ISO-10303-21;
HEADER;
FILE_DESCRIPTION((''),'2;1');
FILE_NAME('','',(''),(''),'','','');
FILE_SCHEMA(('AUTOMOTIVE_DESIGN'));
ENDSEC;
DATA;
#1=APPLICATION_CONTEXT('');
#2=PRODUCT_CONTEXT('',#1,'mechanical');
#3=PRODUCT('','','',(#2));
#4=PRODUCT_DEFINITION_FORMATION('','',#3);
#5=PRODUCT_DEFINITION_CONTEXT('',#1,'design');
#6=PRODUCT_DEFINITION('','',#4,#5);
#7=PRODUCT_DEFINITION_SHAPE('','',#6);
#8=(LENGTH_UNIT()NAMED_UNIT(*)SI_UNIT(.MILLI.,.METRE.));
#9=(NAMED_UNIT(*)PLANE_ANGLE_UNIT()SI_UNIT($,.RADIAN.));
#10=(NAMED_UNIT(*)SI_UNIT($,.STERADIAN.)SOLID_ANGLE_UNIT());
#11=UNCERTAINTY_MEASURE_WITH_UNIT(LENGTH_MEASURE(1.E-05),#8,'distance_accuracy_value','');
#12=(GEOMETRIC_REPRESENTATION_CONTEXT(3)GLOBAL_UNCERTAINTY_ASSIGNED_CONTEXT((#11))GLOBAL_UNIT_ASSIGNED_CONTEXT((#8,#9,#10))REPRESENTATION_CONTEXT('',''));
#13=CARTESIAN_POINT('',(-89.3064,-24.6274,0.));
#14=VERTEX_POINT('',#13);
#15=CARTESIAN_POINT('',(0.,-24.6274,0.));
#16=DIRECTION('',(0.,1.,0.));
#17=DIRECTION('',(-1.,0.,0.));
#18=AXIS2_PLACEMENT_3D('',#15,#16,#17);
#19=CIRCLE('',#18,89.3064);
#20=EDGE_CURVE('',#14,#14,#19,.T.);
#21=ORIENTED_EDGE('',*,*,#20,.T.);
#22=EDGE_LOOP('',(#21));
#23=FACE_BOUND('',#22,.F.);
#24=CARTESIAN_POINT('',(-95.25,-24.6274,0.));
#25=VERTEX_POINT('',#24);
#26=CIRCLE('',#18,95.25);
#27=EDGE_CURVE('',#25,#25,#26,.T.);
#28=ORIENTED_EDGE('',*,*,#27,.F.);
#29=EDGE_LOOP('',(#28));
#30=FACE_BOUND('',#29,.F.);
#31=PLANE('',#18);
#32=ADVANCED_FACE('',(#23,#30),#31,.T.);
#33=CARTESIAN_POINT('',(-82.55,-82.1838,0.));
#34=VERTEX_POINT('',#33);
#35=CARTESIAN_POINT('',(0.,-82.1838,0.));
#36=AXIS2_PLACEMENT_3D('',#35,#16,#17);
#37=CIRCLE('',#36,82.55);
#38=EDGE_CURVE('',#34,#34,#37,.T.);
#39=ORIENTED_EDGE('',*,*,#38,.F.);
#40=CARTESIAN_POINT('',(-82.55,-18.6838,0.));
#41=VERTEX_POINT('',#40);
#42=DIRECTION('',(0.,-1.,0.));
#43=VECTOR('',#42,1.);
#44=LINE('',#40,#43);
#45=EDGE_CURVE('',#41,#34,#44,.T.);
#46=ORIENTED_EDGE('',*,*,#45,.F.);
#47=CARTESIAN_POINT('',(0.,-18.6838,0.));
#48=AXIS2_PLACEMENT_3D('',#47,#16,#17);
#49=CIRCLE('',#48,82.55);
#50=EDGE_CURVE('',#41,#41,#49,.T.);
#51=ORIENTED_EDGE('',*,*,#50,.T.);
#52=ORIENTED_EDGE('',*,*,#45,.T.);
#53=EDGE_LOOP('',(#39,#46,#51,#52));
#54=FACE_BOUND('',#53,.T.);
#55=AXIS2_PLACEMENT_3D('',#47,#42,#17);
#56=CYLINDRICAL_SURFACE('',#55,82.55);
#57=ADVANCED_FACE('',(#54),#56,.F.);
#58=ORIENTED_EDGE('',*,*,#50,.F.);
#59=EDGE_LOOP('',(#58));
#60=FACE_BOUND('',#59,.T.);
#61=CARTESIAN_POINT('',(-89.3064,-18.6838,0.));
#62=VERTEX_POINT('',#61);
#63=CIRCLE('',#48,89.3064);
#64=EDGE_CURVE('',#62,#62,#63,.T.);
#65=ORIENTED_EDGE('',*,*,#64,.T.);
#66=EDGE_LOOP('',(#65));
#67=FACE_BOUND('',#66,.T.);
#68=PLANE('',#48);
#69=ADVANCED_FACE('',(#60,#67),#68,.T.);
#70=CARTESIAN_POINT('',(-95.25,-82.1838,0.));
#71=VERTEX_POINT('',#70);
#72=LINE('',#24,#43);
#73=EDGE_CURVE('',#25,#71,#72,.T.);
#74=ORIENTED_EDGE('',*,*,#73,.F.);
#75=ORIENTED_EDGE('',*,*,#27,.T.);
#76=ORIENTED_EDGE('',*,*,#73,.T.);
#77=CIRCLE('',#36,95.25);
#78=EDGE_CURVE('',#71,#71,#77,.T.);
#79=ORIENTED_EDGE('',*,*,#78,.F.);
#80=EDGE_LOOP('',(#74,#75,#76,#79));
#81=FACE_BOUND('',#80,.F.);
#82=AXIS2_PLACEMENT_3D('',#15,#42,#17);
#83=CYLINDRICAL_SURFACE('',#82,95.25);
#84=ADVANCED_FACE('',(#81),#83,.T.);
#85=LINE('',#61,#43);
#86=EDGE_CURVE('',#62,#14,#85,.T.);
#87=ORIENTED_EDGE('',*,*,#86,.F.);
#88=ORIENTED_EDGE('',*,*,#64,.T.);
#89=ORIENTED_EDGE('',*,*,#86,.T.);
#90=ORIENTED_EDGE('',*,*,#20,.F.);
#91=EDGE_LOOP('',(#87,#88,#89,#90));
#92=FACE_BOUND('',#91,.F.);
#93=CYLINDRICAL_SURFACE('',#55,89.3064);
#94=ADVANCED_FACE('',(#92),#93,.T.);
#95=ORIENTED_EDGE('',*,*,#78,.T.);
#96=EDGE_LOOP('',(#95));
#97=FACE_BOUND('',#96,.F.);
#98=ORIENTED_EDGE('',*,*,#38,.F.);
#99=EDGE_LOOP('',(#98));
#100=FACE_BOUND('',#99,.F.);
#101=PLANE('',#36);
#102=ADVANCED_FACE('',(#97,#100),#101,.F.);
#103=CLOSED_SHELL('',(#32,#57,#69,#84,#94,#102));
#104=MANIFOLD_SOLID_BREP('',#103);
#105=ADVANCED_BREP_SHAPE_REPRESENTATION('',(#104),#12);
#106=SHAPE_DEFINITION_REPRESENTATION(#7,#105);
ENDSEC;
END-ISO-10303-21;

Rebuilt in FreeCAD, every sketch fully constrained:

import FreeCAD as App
import Part
import Sketcher
from FreeCAD import Vector
Q = App.Units.Quantity


def add_polygon(sketch, points):
    """Adds a closed chain of lines whose ends are joined by coincident constraints."""
    first, n = sketch.GeometryCount, len(points)
    for a, b in zip(points, points[1:] + points[:1]):
        sketch.addGeometry(Part.LineSegment(App.Vector(*a, 0), App.Vector(*b, 0)), False)
    for i in range(n):
        sketch.addConstraint(Sketcher.Constraint("Coincident", first + i, 2, first + (i + 1) % n, 1))

doc = App.newDocument("Part")
body = doc.addObject("PartDesign::Body", "Body")

# Sketch on XY plane
sketch1 = body.newObject("Sketcher::SketchObject", "Sketch")
sketch1.AttachmentSupport = (doc.getObject("XY_Plane"), [""])
sketch1.MapMode = "FlatFace"
add_polygon(sketch1, [(-95, -82), (-83, -82), (-83, -19), (-89, -19), (-89, -25), (-95, -25)])  # lines 0-5
sketch1.addConstraint([
    Sketcher.Constraint("Horizontal", 0),
    Sketcher.Constraint("Vertical", 1),
    Sketcher.Constraint("Horizontal", 2),
    Sketcher.Constraint("Vertical", 3),
    Sketcher.Constraint("Horizontal", 4),
    Sketcher.Constraint("Vertical", 5),
    Sketcher.Constraint("Equal", 4, 3),
    Sketcher.Constraint("DistanceX", 0, 1, 0, 2, Q("0.5 in")),
    Sketcher.Constraint("DistanceY", 1, 1, 1, 2, Q("2.5 in")),
    Sketcher.Constraint("DistanceX", 4, 2, 4, 1, Q("0.234 in")),
    Sketcher.Constraint("DistanceX", 4, 2, -1, 1, Q("3.75 in")),
    Sketcher.Constraint("DistanceY", 0, 2, -1, 1, 82.1838),
])
revolution = body.newObject("PartDesign::Revolution", "Revolution")
revolution.Profile = sketch1
revolution.ReferenceAxis = (sketch1, ["V_Axis"])
revolution.Angle = 360

doc.recompute()
